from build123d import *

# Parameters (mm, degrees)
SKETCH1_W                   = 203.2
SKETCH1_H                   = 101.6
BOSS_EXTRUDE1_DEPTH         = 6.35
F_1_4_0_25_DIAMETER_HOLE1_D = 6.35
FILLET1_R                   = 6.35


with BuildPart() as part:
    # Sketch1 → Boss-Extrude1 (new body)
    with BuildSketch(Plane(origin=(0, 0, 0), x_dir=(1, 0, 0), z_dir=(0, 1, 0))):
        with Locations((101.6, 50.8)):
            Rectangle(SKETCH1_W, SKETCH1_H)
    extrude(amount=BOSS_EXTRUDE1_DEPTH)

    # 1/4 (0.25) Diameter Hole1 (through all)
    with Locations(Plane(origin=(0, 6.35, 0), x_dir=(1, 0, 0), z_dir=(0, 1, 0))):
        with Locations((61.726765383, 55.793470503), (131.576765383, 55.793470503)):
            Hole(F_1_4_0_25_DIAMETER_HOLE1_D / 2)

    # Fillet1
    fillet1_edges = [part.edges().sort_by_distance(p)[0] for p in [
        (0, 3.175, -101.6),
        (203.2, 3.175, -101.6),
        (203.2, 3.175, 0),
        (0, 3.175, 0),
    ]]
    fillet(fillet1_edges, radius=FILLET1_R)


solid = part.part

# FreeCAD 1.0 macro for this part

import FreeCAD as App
import Part
import Sketcher

V = App.Vector
Q = App.Units.Quantity


def edges_at(feature, points):
    """Names of the edges that pass closest to the given points."""
    edges = feature.Shape.Edges
    near = lambda p: min(range(len(edges)), key=lambda i: edges[i].distToShape(Part.Vertex(*p))[0])
    return sorted({f"Edge{near(p) + 1}" for p in points})

doc = App.newDocument("Part")
params = doc.addObject("Spreadsheet::Sheet", "Params")
for row, (alias, value) in enumerate([
    ("sketch1_width", "8 in"),
    ("sketch1_height", "4 in"),
    ("pad1_length", "0.25 in"),
    ("sketch2_diameter", "0.25 in"),
    ("hole_diameter", "0.25 in"),
    ("fillet_radius", "0.25 in"),
], start=1):
    params.set(f"A{row}", alias)
    params.set(f"B{row}", "=" + value)
    params.setAlias(f"B{row}", alias)

body = doc.addObject("PartDesign::Body", "Body")

sketch1 = body.newObject("Sketcher::SketchObject", "Sketch")
sketch1.AttachmentSupport = (doc.getObject("XZ_Plane"), [""])
sketch1.MapMode = "FlatFace"
sketch1.addGeometry([
    Part.LineSegment(V(0, -101.6, 0), V(0, 0, 0)),
    Part.LineSegment(V(0, 0, 0), V(203.2, 0, 0)),
    Part.LineSegment(V(203.2, 0, 0), V(203.2, -101.6, 0)),
    Part.LineSegment(V(203.2, -101.6, 0), V(0, -101.6, 0)),
], False)
sketch1.addConstraint([
    Sketcher.Constraint("Coincident", 0, 2, 1, 1),
    Sketcher.Constraint("Coincident", 1, 2, 2, 1),
    Sketcher.Constraint("Coincident", 2, 2, 3, 1),
    Sketcher.Constraint("Coincident", 3, 2, 0, 1),
    Sketcher.Constraint("Vertical", 0),
    Sketcher.Constraint("Horizontal", 1),
    Sketcher.Constraint("Vertical", 2),
    Sketcher.Constraint("Horizontal", 3),
    Sketcher.Constraint("Coincident", 0, 2, -1, 1),
    Sketcher.Constraint("DistanceX", 1, 1, 1, 2, Q("8 in")),
    Sketcher.Constraint("DistanceY", 0, 1, 0, 2, Q("4 in")),
])
sketch1.setExpression("Constraints[9]", "Params.sketch1_width")
sketch1.setExpression("Constraints[10]", "Params.sketch1_height")
pad1 = body.newObject("PartDesign::Pad", "Pad")
pad1.Profile = sketch1
pad1.setExpression("Length", "Params.pad1_length")
pad1.Reversed = True

sketch2 = body.newObject("Sketcher::SketchObject", "Sketch001")
sketch2.AttachmentSupport = (doc.getObject("XZ_Plane"), [""])
sketch2.MapMode = "FlatFace"
sketch2.AttachmentOffset = App.Placement(V(0, 0, -0.25 * 25.4), App.Rotation())
sketch2.addGeometry([
    Part.Circle(V(61.726765, -55.793471, 0), V(0, 0, 1), 3.175),
    Part.Circle(V(131.576765, -55.793471, 0), V(0, 0, 1), 3.175),
], False)
sketch2.addConstraint([
    Sketcher.Constraint("Equal", 0, 1),
    Sketcher.Constraint("Horizontal", 0, 3, 1, 3),
    Sketcher.Constraint("Diameter", 0, Q("0.25 in")),
    Sketcher.Constraint("DistanceX", 0, 3, 1, 3, Q("2.75 in")),
    Sketcher.Constraint("DistanceY", 0, 3, -1, 1, Q("55.793471 mm")),
    Sketcher.Constraint("DistanceX", -1, 1, 0, 3, Q("61.726765 mm")),
])
sketch2.setExpression("Constraints[2]", "Params.sketch2_diameter")
doc.recompute()
hole = body.newObject("PartDesign::Hole", "Hole")
hole.Profile = sketch2
hole.ThreadType = "None"
hole.setExpression("Diameter", "Params.hole_diameter")
hole.DepthType = "ThroughAll"
hole.Reversed = True
doc.recompute()

fillet = body.newObject("PartDesign::Fillet", "Fillet")
fillet.Base = (hole, edges_at(hole, [
    (0, 3.175, -101.6),
    (203.2, 3.175, -101.6),
    (203.2, 3.175, 0),
    (0, 3.175, 0),
]))
fillet.setExpression("Radius", "Params.fillet_radius")

doc.recompute()
